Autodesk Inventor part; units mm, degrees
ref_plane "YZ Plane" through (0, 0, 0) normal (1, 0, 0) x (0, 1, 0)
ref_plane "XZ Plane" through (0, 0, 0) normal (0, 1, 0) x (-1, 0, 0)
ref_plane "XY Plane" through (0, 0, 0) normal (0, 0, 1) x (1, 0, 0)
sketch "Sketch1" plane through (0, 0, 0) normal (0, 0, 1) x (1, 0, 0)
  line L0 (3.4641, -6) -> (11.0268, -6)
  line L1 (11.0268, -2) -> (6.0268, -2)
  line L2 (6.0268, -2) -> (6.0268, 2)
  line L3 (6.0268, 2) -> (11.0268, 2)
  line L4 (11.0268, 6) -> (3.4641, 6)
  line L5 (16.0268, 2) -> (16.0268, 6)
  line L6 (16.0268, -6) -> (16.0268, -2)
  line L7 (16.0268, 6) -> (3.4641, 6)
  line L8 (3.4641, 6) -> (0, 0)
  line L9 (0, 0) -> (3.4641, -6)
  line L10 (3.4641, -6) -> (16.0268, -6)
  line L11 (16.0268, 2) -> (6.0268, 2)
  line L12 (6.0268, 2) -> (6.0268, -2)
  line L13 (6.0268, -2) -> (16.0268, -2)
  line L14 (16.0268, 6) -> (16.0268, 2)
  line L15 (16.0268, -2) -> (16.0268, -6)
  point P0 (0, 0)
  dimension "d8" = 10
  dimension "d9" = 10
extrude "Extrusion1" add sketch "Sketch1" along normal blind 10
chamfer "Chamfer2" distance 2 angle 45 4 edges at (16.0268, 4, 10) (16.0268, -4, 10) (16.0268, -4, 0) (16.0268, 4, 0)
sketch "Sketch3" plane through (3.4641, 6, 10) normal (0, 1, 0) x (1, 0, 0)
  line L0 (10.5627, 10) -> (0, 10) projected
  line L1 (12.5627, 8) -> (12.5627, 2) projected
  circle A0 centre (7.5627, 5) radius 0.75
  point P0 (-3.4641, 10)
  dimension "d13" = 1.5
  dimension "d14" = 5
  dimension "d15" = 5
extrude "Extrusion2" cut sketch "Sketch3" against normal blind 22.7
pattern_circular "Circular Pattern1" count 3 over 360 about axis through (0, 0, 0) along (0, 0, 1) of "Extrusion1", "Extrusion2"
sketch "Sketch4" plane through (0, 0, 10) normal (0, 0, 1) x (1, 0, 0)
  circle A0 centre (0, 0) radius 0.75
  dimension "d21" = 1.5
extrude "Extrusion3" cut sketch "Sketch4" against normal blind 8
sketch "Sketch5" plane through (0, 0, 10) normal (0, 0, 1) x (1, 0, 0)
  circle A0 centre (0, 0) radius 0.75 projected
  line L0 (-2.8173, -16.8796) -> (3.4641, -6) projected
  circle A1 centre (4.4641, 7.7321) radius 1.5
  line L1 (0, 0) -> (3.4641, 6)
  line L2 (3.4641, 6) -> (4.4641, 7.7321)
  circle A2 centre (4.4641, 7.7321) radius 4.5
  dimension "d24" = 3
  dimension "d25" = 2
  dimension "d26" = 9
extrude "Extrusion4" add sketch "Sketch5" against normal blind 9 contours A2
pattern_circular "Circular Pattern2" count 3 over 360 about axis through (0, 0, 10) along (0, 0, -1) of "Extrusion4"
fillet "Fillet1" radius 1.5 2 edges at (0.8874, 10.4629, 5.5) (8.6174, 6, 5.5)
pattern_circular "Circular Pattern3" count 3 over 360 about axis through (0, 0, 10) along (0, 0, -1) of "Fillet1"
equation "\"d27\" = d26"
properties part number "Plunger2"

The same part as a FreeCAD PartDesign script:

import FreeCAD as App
import Part
import Sketcher
from FreeCAD import Vector
Q = App.Units.Quantity


def edges_at(feature, points):
    """Names of the edges that pass closest to the given points."""
    edges = feature.Shape.Edges
    near = lambda p: min(range(len(edges)), key=lambda i: edges[i].distToShape(Part.Vertex(*p))[0])
    return sorted({f"Edge{near(p) + 1}" for p in points})


def add_polygon(sketch, points):
    """Adds a closed chain of lines whose ends are joined by coincident constraints."""
    first, n = sketch.GeometryCount, len(points)
    for a, b in zip(points, points[1:] + points[:1]):
        sketch.addGeometry(Part.LineSegment(App.Vector(*a, 0), App.Vector(*b, 0)), False)
    for i in range(n):
        sketch.addConstraint(Sketcher.Constraint("Coincident", first + i, 2, first + (i + 1) % n, 1))

doc = App.newDocument("Part")
body = doc.addObject("PartDesign::Body", "Body")

# Sketch on XY plane
sketch1 = body.newObject("Sketcher::SketchObject", "Sketch")
sketch1.AttachmentSupport = (doc.getObject("XY_Plane"), [""])
sketch1.MapMode = "FlatFace"
add_polygon(sketch1, [(0, 0), (3.5, -6), (16, -6), (16, -2), (6, -2), (6, 2), (16, 2), (16, 6), (3.5, 6)])  # lines 0-8
sketch1.addConstraint([
    Sketcher.Constraint("Horizontal", 1),
    Sketcher.Constraint("Vertical", 2),
    Sketcher.Constraint("Horizontal", 3),
    Sketcher.Constraint("Vertical", 4),
    Sketcher.Constraint("Horizontal", 5),
    Sketcher.Constraint("Vertical", 6),
    Sketcher.Constraint("Horizontal", 7),
    Sketcher.Constraint("Coincident", 8, 2, -1, 1),
    Sketcher.Constraint("Symmetric", 2, 2, 5, 2, -1),
    Sketcher.Constraint("Symmetric", 0, 2, 7, 2, -1),
    Sketcher.Constraint("Equal", 2, 4),
    Sketcher.Constraint("DistanceX", 3, 2, 3, 1, 10.0),
    Sketcher.Constraint("DistanceY", 2, 1, 2, 2, 4.0),
    Sketcher.Constraint("Angle", 0, Q("-60 deg")),
    Sketcher.Constraint("DistanceX", 1, 1, 1, 2, 12.5627),
])
pad1 = body.newObject("PartDesign::Pad", "Pad")
pad1.Profile = sketch1
pad1.Length = 10
doc.recompute()

chamfer = body.newObject("PartDesign::Chamfer", "Chamfer")
chamfer.Base = (pad1, edges_at(pad1, [
    (16.027, 4, 10),
    (16.027, -4, 10),
    (16.027, -4, 0),
    (16.027, 4, 0),
]))
chamfer.Size = 2

# Sketch on XZ plane
sketch2 = body.newObject("Sketcher::SketchObject", "Sketch001")
sketch2.AttachmentSupport = (doc.getObject("XZ_Plane"), [""])
sketch2.MapMode = "FlatFace"
sketch2.AttachmentOffset = App.Placement(Vector(0, 0, -6), App.Rotation())
sketch2.addGeometry(Part.Circle(Vector(11, 5, 0), Vector(0, 0, 1), 0.8), False)
sketch2.addConstraint([
    Sketcher.Constraint("Diameter", 0, 1.5),
    Sketcher.Constraint("DistanceY", -1, 1, 0, 3, 5.0),
    Sketcher.Constraint("DistanceX", -1, 1, 0, 3, 11.0268),
])
pocket1 = body.newObject("PartDesign::Pocket", "Pocket")
pocket1.Profile = sketch2
pocket1.Length = 22.7
pocket1.Reversed = True
doc.recompute()

polarpattern = body.newObject("PartDesign::PolarPattern", "PolarPattern")
polarpattern.Originals = [pad1, pocket1]
polarpattern.Axis = (doc.getObject("Z_Axis"), [""])
polarpattern.Angle = 360
polarpattern.Occurrences = 3
body.Tip = polarpattern

# Sketch on XY plane
sketch3 = body.newObject("Sketcher::SketchObject", "Sketch002")
sketch3.AttachmentSupport = (doc.getObject("XY_Plane"), [""])
sketch3.MapMode = "FlatFace"
sketch3.AttachmentOffset = App.Placement(Vector(0, 0, 10), App.Rotation())
sketch3.addGeometry(Part.Circle(Vector(0, 0, 0), Vector(0, 0, 1), 0.8), False)
sketch3.addConstraint([
    Sketcher.Constraint("Coincident", 0, 3, -1, 1),
    Sketcher.Constraint("Diameter", 0, 1.5),
])
pocket2 = body.newObject("PartDesign::Pocket", "Pocket001")
pocket2.Profile = sketch3
pocket2.Length = 8

# Sketch on XY plane
sketch4 = body.newObject("Sketcher::SketchObject", "Sketch003")
sketch4.AttachmentSupport = (doc.getObject("XY_Plane"), [""])
sketch4.MapMode = "FlatFace"
sketch4.AttachmentOffset = App.Placement(Vector(0, 0, 10), App.Rotation())
sketch4.addGeometry([
    Part.Circle(Vector(4.5, 7.7, 0), Vector(0, 0, 1), 4.5),
    Part.Circle(Vector(4.5, 7.7, 0), Vector(0, 0, 1), 1.5),
], False)
sketch4.addConstraint([
    Sketcher.Constraint("Coincident", 1, 3, 0, 3),
    Sketcher.Constraint("Diameter", 0, 9.0),
    Sketcher.Constraint("Diameter", 1, 3.0),
    Sketcher.Constraint("DistanceX", -1, 1, 0, 3, 4.464),
    Sketcher.Constraint("DistanceY", -1, 1, 0, 3, 7.732),
])
pad2 = body.newObject("PartDesign::Pad", "Pad001")
pad2.Profile = sketch4
pad2.Length = 9
pad2.Reversed = True
doc.recompute()

polarpattern2 = body.newObject("PartDesign::PolarPattern", "PolarPattern001")
polarpattern2.Originals = [pad2]
polarpattern2.Axis = (doc.getObject("Z_Axis"), [""])
polarpattern2.Angle = 360
polarpattern2.Occurrences = 3
body.Tip = polarpattern2
doc.recompute()

fillet = body.newObject("PartDesign::Fillet", "Fillet")
fillet.Base = (polarpattern2, edges_at(polarpattern2, [(0.887, 10.463, 5.5), (8.617, 6, 5.5)]))
fillet.Radius = 1.5
doc.recompute()

polarpattern3 = body.newObject("PartDesign::PolarPattern", "PolarPattern002")
polarpattern3.Originals = [fillet]
polarpattern3.Axis = (doc.getObject("Z_Axis"), [""])
polarpattern3.Angle = 360
polarpattern3.Occurrences = 3
body.Tip = polarpattern3

doc.recompute()
